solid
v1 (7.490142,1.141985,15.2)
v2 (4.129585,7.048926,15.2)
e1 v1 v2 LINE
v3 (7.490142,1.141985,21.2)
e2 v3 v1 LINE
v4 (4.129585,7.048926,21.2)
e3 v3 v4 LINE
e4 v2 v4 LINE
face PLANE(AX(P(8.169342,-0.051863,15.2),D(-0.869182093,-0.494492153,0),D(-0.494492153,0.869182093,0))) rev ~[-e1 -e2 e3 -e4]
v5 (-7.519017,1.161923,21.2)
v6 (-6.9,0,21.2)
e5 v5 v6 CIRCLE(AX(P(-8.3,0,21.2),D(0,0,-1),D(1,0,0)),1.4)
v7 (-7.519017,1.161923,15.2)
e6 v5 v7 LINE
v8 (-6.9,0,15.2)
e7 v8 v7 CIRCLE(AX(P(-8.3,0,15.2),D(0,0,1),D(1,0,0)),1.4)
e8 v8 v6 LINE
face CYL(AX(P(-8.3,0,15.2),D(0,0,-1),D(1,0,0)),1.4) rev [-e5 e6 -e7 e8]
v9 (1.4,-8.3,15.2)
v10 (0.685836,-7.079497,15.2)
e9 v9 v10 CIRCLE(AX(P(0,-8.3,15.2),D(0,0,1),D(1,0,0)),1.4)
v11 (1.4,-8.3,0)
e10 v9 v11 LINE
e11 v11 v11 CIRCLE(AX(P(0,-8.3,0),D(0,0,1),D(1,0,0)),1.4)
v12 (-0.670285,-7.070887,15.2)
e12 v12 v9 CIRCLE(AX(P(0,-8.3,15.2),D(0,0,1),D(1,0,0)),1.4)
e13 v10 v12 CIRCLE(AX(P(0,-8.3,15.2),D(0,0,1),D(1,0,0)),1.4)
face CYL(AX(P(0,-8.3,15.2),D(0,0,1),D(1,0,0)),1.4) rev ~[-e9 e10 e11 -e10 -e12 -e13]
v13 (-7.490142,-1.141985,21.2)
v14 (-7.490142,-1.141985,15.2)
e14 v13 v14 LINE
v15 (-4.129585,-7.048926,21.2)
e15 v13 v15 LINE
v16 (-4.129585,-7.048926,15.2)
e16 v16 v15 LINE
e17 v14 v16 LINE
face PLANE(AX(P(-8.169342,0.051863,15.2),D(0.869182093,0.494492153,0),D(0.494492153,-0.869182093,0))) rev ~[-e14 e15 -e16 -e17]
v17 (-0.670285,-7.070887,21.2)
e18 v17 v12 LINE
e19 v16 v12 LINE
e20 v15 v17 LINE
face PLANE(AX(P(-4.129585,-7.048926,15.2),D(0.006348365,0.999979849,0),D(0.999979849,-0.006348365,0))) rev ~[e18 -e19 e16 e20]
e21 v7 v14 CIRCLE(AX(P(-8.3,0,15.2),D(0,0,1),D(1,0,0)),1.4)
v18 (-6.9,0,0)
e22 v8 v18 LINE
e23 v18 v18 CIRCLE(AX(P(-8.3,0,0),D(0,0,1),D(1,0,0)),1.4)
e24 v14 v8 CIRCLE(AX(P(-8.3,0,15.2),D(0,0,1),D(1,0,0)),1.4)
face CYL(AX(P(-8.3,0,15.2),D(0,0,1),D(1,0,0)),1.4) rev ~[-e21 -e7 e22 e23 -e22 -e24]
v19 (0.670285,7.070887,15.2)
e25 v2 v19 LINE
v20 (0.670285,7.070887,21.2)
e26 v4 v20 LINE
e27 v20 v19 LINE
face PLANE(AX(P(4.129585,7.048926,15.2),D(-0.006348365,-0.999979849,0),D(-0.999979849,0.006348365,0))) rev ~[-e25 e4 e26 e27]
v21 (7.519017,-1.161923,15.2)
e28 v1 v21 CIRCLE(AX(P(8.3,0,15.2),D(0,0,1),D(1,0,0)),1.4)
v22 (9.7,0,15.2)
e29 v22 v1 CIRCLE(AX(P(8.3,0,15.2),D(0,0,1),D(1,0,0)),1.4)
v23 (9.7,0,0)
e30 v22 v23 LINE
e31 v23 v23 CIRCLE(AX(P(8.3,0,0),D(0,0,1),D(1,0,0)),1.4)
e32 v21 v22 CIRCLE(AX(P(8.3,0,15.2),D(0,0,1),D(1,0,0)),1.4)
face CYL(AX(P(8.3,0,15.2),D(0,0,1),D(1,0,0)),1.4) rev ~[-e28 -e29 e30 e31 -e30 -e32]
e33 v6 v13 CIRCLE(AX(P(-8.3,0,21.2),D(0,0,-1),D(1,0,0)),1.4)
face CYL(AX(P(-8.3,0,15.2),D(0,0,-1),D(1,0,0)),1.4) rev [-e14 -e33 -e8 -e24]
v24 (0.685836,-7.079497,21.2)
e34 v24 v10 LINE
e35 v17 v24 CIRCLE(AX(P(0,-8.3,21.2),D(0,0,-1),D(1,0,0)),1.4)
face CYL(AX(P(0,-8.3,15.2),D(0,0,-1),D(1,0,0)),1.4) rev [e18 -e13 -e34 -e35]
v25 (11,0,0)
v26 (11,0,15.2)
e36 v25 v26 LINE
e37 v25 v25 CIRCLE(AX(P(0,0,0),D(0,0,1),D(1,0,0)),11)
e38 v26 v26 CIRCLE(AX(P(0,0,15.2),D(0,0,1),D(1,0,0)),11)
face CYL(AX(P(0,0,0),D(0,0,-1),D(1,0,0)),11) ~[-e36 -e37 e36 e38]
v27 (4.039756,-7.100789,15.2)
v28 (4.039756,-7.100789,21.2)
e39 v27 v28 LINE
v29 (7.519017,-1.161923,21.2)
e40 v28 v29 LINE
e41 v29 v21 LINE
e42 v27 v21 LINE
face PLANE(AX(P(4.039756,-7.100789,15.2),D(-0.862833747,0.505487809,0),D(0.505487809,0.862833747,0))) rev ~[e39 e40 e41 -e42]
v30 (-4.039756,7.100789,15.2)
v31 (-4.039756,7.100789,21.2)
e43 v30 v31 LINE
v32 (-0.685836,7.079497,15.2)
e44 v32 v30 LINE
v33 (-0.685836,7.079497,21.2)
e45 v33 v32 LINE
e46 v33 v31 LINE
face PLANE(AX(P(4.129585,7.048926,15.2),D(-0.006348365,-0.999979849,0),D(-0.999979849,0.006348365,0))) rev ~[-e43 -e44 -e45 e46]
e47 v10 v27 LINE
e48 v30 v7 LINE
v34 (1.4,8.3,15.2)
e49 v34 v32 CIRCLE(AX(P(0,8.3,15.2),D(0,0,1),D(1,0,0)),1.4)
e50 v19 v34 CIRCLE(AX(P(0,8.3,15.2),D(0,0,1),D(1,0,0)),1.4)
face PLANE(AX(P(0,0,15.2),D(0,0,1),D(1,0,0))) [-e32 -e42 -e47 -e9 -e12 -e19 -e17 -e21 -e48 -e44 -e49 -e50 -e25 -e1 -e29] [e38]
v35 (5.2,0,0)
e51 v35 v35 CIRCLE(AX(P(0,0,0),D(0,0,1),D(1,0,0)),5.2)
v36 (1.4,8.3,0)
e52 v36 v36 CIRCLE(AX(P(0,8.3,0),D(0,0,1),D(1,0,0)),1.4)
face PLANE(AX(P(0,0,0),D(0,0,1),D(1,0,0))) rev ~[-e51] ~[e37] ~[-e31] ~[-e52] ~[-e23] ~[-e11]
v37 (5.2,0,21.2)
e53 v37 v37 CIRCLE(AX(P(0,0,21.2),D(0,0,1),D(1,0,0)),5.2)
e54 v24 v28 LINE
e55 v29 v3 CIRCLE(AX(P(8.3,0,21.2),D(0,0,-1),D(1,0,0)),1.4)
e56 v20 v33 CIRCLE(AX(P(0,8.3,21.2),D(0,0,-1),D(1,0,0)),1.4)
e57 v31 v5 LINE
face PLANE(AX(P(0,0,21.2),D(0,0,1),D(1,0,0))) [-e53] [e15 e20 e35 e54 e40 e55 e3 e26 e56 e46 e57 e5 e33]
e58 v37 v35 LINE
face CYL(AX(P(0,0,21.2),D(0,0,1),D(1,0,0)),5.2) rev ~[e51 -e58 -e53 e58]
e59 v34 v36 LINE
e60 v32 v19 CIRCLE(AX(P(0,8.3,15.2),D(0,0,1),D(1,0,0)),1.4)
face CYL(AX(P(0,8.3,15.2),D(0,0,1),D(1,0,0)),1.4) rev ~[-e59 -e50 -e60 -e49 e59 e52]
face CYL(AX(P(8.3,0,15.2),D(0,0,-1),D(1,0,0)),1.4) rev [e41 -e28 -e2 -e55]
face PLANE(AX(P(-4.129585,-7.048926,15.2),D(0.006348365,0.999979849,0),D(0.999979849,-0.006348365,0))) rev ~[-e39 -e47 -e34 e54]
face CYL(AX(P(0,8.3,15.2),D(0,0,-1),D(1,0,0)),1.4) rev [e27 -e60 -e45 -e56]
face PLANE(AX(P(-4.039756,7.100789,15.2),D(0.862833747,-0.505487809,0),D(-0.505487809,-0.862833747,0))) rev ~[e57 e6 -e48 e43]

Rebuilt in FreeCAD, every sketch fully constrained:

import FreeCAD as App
import Part
import Sketcher
from FreeCAD import Vector
Q = App.Units.Quantity


def add_polygon(sketch, points):
    """Adds a closed chain of lines whose ends are joined by coincident constraints."""
    first, n = sketch.GeometryCount, len(points)
    for a, b in zip(points, points[1:] + points[:1]):
        sketch.addGeometry(Part.LineSegment(App.Vector(*a, 0), App.Vector(*b, 0)), False)
    for i in range(n):
        sketch.addConstraint(Sketcher.Constraint("Coincident", first + i, 2, first + (i + 1) % n, 1))

doc = App.newDocument("Part")
body = doc.addObject("PartDesign::Body", "Body")

# Sketch on XY plane
sketch1 = body.newObject("Sketcher::SketchObject", "Sketch")
sketch1.AttachmentSupport = (doc.getObject("XY_Plane"), [""])
sketch1.MapMode = "FlatFace"
sketch1.addGeometry(Part.Circle(Vector(0, 0, 0), Vector(0, 0, 1), 11), False)
sketch1.addConstraint(Sketcher.Constraint("Coincident", 0, 3, -1, 1))
sketch1.addConstraint(Sketcher.Constraint("Diameter", 0, Q("22 mm")))
pad1 = body.newObject("PartDesign::Pad", "Pad")
pad1.Profile = sketch1
pad1.Length = 15.2

# Sketch on XY plane
sketch2 = body.newObject("Sketcher::SketchObject", "Sketch001")
sketch2.AttachmentSupport = (doc.getObject("XY_Plane"), [""])
sketch2.MapMode = "FlatFace"
sketch2.AttachmentOffset = App.Placement(Vector(0, 0, 15.2), App.Rotation())
sketch2.addGeometry(Part.Circle(Vector(0, 0, 0), Vector(0, 0, 1), 5), False)
sketch2.addConstraint(Sketcher.Constraint("Coincident", 0, 3, -1, 1))
sketch2.addConstraint(Sketcher.Constraint("Diameter", 0, Q("10.2 mm")))
pocket1 = body.newObject("PartDesign::Pocket", "Pocket")
pocket1.Profile = sketch2
pocket1.Length = 50
pocket2 = body.newObject("PartDesign::Pocket", "Pocket001")
pocket2.Profile = sketch2
pocket2.Length = 50

# Sketch on XY plane
sketch3 = body.newObject("Sketcher::SketchObject", "Sketch002")
sketch3.AttachmentSupport = (doc.getObject("XY_Plane"), [""])
sketch3.MapMode = "FlatFace"
sketch3.AttachmentOffset = App.Placement(Vector(0, 0, 15.2), App.Rotation())
sketch3.addGeometry(Part.Circle(Vector(0, -8.3, 0), Vector(0, 0, 1), 1.4), False)
sketch3.addGeometry(Part.Circle(Vector(-8.3, 0, 0), Vector(0, 0, 1), 1.4), False)
sketch3.addGeometry(Part.Circle(Vector(0, 8.3, 0), Vector(0, 0, 1), 1.4), False)
sketch3.addGeometry(Part.Circle(Vector(8.3, 0, 0), Vector(0, 0, 1), 1.4), False)
sketch3.addConstraint(Sketcher.Constraint("Equal", 0, 1))
sketch3.addConstraint(Sketcher.Constraint("Equal", 1, 2))
sketch3.addConstraint(Sketcher.Constraint("Equal", 2, 3))
sketch3.addConstraint(Sketcher.Constraint("Symmetric", 0, 3, 2, 3, -1, 1))
sketch3.addConstraint(Sketcher.Constraint("Symmetric", 1, 3, 3, 3, -1, 1))
sketch3.addConstraint(Sketcher.Constraint("PointOnObject", 0, 3, -2))
sketch3.addConstraint(Sketcher.Constraint("PointOnObject", 1, 3, -1))
sketch3.addConstraint(Sketcher.Constraint("Diameter", 0, Q("2.8 mm")))
sketch3.addConstraint(Sketcher.Constraint("DistanceY", 0, 3, -1, 1, Q("8.3 mm")))
sketch3.addConstraint(Sketcher.Constraint("DistanceX", 1, 3, -1, 1, Q("8.3 mm")))
pocket3 = body.newObject("PartDesign::Pocket", "Pocket002")
pocket3.Profile = sketch3
pocket3.Length = 25

# Sketch on XY plane
sketch4 = body.newObject("Sketcher::SketchObject", "Sketch003")
sketch4.AttachmentSupport = (doc.getObject("XY_Plane"), [""])
sketch4.MapMode = "FlatFace"
sketch4.AttachmentOffset = App.Placement(Vector(0, 0, 15.2), App.Rotation())
add_polygon(sketch4, [(4, -7), (8, 0), (4, 7), (-4, 7), (-8, 0), (-4, -7)])  # lines 0-5
sketch4.addConstraint(Sketcher.Constraint("Symmetric", 0, 2, 3, 2, -1, 1))
sketch4.addConstraint(Sketcher.Constraint("Symmetric", 1, 2, 4, 2, -1, 1))
sketch4.addConstraint(Sketcher.Constraint("Symmetric", 2, 2, 5, 2, -1, 1))
sketch4.addConstraint(Sketcher.Constraint("Equal", 0, 1))
sketch4.addConstraint(Sketcher.Constraint("Equal", 1, 2))
sketch4.addConstraint(Sketcher.Constraint("DistanceX", 2, 2, 0, 2, Q("12.209098 mm")))
sketch4.addConstraint(Sketcher.Constraint("DistanceY", -1, 1, 2, 2, Q("7.100789 mm")))
sketch4.addConstraint(Sketcher.Constraint("DistanceY", 0, 2, 1, 2, Q("7.100789 mm")))
sketch4.addConstraint(Sketcher.Constraint("DistanceY", 0, 2, 2, 2, Q("7.152652 mm")))
pad2 = body.newObject("PartDesign::Pad", "Pad001")
pad2.Profile = sketch4
pad2.Length = 6

# Sketch on XY plane
sketch5 = body.newObject("Sketcher::SketchObject", "Sketch004")
sketch5.AttachmentSupport = (doc.getObject("XY_Plane"), [""])
sketch5.MapMode = "FlatFace"
sketch5.AttachmentOffset = App.Placement(Vector(0, 0, 21.2), App.Rotation())
sketch5.addGeometry(Part.Circle(Vector(0, 0, 0), Vector(0, 0, 1), 5), False)
sketch5.addConstraint(Sketcher.Constraint("Coincident", 0, 3, -1, 1))
sketch5.addConstraint(Sketcher.Constraint("Diameter", 0, Q("10.4 mm")))
pocket4 = body.newObject("PartDesign::Pocket", "Pocket003")
pocket4.Profile = sketch5
pocket4.Length = 50

# Sketch on XY plane
sketch6 = body.newObject("Sketcher::SketchObject", "Sketch005")
sketch6.AttachmentSupport = (doc.getObject("XY_Plane"), [""])
sketch6.MapMode = "FlatFace"
sketch6.AttachmentOffset = App.Placement(Vector(0, 0, 15.2), App.Rotation())
sketch6.addGeometry(Part.Circle(Vector(-8.3, 0, 0), Vector(0, 0, 1), 1.4), False)
sketch6.addGeometry(Part.Circle(Vector(8.3, 0, 0), Vector(0, 0, 1), 1.4), False)
sketch6.addGeometry(Part.Circle(Vector(0, 8.3, 0), Vector(0, 0, 1), 1.4), False)
sketch6.addGeometry(Part.Circle(Vector(0, -8.3, 0), Vector(0, 0, 1), 1.4), False)
sketch6.addConstraint(Sketcher.Constraint("Equal", 0, 1))
sketch6.addConstraint(Sketcher.Constraint("Equal", 1, 2))
sketch6.addConstraint(Sketcher.Constraint("Equal", 2, 3))
sketch6.addConstraint(Sketcher.Constraint("Symmetric", 0, 3, 1, 3, -1, 1))
sketch6.addConstraint(Sketcher.Constraint("Symmetric", 2, 3, 3, 3, -1, 1))
sketch6.addConstraint(Sketcher.Constraint("PointOnObject", 0, 3, -1))
sketch6.addConstraint(Sketcher.Constraint("PointOnObject", 2, 3, -2))
sketch6.addConstraint(Sketcher.Constraint("Diameter", 0, Q("2.8 mm")))
sketch6.addConstraint(Sketcher.Constraint("DistanceX", 0, 3, -1, 1, Q("8.3 mm")))
sketch6.addConstraint(Sketcher.Constraint("DistanceY", -1, 1, 2, 3, Q("8.3 mm")))
pocket5 = body.newObject("PartDesign::Pocket", "Pocket004")
pocket5.Profile = sketch6
pocket5.Length = 25
pocket5.Reversed = True

doc.recompute()
